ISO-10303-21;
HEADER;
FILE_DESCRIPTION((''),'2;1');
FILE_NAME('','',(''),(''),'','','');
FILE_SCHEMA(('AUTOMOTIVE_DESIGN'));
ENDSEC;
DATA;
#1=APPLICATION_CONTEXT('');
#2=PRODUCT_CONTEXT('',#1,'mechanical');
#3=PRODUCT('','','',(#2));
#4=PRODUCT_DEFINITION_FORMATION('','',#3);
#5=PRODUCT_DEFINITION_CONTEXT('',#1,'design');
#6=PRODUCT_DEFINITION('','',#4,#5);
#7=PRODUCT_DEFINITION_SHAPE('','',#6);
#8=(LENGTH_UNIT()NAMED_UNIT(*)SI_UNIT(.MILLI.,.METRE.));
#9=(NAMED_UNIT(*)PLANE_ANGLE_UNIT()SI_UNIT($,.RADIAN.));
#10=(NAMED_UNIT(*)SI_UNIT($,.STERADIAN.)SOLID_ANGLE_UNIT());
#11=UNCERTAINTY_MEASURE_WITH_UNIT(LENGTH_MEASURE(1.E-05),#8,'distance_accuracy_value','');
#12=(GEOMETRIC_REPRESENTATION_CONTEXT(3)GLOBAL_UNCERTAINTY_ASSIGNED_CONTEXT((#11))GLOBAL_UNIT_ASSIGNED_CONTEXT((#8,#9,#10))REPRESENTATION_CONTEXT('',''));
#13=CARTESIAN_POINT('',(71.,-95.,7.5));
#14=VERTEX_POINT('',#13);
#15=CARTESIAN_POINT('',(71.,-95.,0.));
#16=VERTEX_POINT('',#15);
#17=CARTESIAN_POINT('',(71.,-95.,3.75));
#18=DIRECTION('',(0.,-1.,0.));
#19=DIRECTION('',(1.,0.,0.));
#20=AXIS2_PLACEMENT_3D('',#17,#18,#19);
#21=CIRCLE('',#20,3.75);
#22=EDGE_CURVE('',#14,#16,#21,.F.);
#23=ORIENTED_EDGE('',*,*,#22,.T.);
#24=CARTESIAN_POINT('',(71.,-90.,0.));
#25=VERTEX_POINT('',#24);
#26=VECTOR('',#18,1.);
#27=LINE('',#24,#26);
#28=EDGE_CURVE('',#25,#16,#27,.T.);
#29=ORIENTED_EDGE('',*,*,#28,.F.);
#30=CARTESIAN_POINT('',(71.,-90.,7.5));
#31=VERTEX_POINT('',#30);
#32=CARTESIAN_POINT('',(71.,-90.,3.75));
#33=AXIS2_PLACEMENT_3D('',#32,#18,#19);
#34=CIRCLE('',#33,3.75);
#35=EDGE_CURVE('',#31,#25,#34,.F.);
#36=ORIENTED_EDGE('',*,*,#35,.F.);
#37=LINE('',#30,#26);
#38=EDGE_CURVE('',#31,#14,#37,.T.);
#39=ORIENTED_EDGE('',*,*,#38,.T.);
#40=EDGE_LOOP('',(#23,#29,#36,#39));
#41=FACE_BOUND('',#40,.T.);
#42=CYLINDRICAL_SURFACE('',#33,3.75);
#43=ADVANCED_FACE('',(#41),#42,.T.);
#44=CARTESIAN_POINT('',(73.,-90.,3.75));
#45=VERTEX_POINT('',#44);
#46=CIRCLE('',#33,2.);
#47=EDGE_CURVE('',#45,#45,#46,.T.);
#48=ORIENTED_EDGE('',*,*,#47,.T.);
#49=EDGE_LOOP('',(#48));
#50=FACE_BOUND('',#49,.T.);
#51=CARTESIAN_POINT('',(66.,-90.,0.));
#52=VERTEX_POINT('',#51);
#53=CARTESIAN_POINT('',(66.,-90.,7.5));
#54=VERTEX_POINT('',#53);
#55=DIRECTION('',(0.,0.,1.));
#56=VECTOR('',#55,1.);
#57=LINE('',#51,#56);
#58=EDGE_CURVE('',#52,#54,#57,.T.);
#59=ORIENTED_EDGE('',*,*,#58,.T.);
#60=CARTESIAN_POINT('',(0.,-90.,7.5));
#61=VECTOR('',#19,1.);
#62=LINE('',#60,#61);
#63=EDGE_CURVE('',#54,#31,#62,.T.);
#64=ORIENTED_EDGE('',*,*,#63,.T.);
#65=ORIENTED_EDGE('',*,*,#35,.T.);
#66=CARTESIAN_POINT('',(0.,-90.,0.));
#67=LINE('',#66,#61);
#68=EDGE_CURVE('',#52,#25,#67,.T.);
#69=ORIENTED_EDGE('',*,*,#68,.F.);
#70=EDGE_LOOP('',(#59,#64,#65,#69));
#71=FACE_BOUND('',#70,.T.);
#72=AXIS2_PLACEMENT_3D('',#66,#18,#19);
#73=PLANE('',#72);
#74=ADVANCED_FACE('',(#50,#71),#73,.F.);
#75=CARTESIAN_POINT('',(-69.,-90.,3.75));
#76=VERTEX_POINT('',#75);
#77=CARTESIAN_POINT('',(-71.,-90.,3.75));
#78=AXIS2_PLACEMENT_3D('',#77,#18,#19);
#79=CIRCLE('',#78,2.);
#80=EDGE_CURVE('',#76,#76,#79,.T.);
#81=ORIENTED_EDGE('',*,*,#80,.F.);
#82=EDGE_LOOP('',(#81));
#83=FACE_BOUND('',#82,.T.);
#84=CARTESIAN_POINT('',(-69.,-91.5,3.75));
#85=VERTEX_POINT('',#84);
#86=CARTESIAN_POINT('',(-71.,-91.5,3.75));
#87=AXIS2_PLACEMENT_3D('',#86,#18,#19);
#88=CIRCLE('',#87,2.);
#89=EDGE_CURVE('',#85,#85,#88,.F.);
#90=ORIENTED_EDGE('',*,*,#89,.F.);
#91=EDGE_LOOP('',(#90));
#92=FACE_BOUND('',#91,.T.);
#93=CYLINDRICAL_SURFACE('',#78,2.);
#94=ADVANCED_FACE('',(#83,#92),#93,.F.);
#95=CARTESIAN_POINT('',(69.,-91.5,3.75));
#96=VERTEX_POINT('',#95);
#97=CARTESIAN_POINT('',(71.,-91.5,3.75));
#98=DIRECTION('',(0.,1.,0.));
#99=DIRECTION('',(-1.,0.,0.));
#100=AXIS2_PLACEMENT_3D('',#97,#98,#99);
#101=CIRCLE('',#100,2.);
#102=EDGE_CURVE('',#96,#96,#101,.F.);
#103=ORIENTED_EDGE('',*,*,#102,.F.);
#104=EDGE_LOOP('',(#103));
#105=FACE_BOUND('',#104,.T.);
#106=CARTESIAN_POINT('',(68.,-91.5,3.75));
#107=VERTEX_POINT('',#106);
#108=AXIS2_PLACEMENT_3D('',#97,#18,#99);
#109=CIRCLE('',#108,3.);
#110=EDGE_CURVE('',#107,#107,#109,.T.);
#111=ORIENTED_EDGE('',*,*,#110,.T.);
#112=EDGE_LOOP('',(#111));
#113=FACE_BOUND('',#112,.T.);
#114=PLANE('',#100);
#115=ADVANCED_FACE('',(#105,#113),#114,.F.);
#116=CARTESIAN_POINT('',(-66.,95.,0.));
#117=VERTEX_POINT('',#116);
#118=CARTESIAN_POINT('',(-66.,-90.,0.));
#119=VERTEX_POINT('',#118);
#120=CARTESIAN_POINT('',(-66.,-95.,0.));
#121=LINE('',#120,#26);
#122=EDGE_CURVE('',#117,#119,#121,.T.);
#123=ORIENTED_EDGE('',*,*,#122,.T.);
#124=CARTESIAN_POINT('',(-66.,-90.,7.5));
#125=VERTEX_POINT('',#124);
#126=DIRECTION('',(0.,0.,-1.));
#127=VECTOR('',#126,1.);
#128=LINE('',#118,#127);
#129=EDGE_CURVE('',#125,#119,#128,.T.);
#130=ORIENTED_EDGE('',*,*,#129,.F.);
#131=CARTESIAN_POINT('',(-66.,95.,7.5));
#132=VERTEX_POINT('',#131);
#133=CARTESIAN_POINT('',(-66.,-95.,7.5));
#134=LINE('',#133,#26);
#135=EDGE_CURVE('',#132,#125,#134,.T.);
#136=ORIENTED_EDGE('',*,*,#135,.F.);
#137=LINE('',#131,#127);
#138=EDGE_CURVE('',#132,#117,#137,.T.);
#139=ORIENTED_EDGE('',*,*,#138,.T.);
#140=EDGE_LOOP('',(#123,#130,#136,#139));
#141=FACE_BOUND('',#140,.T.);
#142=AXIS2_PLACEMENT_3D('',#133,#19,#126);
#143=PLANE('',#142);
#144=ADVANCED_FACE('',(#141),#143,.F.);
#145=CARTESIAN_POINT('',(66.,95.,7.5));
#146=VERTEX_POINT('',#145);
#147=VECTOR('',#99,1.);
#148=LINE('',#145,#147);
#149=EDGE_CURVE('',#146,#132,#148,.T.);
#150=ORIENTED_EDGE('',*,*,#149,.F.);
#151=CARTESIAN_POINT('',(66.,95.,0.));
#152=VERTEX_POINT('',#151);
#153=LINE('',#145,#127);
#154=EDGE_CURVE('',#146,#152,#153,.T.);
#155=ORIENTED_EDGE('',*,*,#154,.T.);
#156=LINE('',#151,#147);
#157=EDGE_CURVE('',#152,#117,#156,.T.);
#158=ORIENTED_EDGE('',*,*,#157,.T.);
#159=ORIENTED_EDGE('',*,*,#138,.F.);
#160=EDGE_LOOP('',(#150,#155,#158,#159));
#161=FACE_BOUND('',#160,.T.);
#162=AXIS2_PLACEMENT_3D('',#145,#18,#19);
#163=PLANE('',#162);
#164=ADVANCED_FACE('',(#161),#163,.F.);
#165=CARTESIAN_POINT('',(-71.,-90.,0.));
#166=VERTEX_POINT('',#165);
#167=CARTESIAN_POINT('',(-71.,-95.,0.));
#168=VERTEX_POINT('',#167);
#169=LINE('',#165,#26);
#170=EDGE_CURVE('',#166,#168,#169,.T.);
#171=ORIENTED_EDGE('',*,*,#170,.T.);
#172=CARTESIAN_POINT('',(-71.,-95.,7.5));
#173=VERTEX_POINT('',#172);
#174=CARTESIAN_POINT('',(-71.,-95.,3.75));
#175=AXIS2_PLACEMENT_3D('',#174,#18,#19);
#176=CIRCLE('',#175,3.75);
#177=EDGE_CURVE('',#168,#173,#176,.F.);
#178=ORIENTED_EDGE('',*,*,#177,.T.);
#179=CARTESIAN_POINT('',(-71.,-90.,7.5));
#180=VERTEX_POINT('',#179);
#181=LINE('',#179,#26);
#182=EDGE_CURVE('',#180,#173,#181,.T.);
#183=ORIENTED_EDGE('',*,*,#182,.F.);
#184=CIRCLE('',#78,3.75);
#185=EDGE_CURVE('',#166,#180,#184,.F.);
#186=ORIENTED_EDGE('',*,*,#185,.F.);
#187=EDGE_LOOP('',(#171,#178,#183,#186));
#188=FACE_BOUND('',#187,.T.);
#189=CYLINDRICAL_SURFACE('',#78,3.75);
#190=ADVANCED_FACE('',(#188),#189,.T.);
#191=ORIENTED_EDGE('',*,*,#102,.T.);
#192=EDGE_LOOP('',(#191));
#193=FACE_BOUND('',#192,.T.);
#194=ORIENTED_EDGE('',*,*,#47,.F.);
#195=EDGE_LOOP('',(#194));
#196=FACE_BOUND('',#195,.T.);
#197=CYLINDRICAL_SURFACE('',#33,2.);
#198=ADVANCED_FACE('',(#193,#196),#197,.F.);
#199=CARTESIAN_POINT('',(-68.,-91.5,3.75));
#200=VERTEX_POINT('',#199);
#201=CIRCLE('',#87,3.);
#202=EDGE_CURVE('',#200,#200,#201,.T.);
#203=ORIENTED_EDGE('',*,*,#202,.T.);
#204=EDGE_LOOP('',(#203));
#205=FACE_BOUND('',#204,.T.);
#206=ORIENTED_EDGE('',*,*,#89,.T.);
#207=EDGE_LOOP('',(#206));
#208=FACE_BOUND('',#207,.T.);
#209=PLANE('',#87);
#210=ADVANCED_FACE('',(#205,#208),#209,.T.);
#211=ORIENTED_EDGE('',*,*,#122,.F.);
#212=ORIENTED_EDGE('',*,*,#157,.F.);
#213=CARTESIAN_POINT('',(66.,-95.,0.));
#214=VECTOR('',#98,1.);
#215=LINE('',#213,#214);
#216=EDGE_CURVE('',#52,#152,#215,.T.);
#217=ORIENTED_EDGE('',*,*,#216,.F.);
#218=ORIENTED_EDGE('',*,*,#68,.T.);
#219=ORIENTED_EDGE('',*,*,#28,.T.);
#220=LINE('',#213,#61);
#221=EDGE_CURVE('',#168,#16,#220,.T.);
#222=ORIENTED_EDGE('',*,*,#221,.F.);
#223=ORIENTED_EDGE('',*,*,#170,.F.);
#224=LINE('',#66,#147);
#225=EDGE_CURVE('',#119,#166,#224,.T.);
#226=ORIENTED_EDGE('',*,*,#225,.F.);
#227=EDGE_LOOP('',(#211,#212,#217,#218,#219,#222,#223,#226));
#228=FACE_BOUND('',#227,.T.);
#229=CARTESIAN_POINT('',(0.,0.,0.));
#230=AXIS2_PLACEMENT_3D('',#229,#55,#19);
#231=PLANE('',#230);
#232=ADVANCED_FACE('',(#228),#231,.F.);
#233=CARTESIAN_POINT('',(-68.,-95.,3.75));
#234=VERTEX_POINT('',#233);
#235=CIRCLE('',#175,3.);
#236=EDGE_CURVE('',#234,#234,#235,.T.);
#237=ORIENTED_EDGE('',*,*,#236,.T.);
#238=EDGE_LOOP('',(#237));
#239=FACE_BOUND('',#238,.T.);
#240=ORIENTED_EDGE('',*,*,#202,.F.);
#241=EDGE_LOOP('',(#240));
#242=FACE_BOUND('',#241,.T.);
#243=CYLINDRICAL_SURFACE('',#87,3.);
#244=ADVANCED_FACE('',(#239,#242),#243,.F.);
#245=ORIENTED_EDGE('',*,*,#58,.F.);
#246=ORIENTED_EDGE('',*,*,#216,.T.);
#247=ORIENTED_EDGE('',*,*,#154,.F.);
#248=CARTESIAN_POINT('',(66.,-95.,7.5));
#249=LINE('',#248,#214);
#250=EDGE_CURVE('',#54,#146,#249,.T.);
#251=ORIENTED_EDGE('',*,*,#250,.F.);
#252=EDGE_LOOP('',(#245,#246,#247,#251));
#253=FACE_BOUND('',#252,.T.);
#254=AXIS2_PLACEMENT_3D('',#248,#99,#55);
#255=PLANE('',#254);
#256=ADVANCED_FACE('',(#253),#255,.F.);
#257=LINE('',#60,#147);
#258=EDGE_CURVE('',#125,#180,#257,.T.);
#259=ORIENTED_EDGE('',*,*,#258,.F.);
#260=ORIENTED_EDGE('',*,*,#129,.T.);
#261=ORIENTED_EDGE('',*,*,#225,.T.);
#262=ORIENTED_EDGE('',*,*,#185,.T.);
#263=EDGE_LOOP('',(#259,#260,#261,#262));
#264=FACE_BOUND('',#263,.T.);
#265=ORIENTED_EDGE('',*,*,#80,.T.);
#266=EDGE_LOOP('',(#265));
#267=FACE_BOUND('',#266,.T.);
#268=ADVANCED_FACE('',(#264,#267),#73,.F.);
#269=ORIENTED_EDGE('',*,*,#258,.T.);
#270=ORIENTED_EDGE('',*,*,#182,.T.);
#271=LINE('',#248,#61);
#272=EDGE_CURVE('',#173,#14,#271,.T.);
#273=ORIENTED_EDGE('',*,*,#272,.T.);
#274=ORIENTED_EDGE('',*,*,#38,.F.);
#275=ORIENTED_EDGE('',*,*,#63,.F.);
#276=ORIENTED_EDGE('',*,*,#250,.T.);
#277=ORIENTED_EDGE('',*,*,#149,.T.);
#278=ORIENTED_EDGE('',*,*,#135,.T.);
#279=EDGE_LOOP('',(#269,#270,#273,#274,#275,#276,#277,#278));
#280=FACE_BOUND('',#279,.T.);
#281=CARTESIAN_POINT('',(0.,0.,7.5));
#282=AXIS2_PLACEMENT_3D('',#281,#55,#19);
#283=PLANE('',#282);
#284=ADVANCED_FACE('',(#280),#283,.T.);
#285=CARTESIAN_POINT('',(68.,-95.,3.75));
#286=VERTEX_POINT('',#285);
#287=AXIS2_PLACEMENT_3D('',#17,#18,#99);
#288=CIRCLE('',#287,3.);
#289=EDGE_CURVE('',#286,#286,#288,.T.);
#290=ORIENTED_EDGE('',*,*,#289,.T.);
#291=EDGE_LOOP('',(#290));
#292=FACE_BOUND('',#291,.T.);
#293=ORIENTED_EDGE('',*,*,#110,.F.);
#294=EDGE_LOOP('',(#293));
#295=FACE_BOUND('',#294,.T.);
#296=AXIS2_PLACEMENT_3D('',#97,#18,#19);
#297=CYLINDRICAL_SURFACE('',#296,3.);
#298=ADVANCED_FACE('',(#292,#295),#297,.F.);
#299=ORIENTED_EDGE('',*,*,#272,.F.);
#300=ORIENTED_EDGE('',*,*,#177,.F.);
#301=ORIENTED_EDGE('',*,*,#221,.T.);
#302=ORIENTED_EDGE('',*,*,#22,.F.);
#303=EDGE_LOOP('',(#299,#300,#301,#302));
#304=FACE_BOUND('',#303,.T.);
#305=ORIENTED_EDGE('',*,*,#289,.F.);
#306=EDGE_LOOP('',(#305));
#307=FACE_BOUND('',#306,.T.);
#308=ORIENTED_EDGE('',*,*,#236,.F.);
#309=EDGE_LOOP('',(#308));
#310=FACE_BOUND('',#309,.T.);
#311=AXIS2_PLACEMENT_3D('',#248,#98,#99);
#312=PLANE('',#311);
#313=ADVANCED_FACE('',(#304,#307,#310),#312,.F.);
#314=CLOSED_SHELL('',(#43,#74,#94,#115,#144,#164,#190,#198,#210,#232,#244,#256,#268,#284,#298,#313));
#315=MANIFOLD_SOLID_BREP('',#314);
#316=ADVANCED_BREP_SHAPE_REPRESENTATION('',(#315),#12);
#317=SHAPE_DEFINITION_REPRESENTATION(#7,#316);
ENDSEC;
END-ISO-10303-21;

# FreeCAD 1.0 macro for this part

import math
import FreeCAD as App
import Part
import Sketcher

V = App.Vector

doc = App.newDocument("Part")
body = doc.addObject("PartDesign::Body", "Body")

# Sketch on XY plane
sketch1 = body.newObject("Sketcher::SketchObject", "Sketch")
sketch1.AttachmentSupport = (doc.getObject("XY_Plane"), [""])
sketch1.MapMode = "FlatFace"
sketch1.addGeometry([
    Part.LineSegment(V(-66, 95, 0), V(-66, -95, 0)),
    Part.LineSegment(V(-66, -95, 0), V(66, -95, 0)),
    Part.LineSegment(V(66, -95, 0), V(66, 95, 0)),
    Part.LineSegment(V(66, 95, 0), V(-66, 95, 0)),
], False)
sketch1.addConstraint([
    Sketcher.Constraint("Coincident", 0, 2, 1, 1),
    Sketcher.Constraint("Coincident", 1, 2, 2, 1),
    Sketcher.Constraint("Coincident", 2, 2, 3, 1),
    Sketcher.Constraint("Coincident", 3, 2, 0, 1),
    Sketcher.Constraint("Vertical", 0),
    Sketcher.Constraint("Horizontal", 1),
    Sketcher.Constraint("Vertical", 2),
    Sketcher.Constraint("Horizontal", 3),
    Sketcher.Constraint("Symmetric", 0, 2, 2, 2, -1, 1),
    Sketcher.Constraint("DistanceX", 1, 1, 1, 2, 132.0),
    Sketcher.Constraint("DistanceY", 0, 2, 0, 1, 190.0),
])
pad1 = body.newObject("PartDesign::Pad", "Pad")
pad1.Profile = sketch1
pad1.Length = 7.5

# Sketch on XZ plane
sketch2 = body.newObject("Sketcher::SketchObject", "Sketch001")
sketch2.AttachmentSupport = (doc.getObject("XZ_Plane"), [""])
sketch2.MapMode = "FlatFace"
sketch2.AttachmentOffset = App.Placement(V(0, 0, 95), App.Rotation())
sketch2.addGeometry([
    Part.ArcOfCircle(Part.Circle(V(-71, 3.8, 0), V(0, 0, 1), 3.8), math.radians(90), math.radians(270)),  # 0
    Part.LineSegment(V(-71, 0, 0), V(-66, 0, 0)),  # 1
    Part.LineSegment(V(-66, 0, 0), V(-66, 7.5, 0)),  # 2
    Part.LineSegment(V(-66, 7.5, 0), V(-71, 7.5, 0)),  # 3
    Part.ArcOfCircle(Part.Circle(V(71, 3.8, 0), V(0, 0, 1), 3.8), math.radians(-90), math.radians(90)),  # 4
    Part.LineSegment(V(71, 7.5, 0), V(66, 7.5, 0)),  # 5
    Part.LineSegment(V(66, 7.5, 0), V(66, 0, 0)),  # 6
    Part.LineSegment(V(66, 0, 0), V(71, 0, 0)),  # 7
], False)
sketch2.addConstraint([
    Sketcher.Constraint("Tangent", 0, 2, 1, 1),
    Sketcher.Constraint("Coincident", 1, 2, 2, 1),
    Sketcher.Constraint("Coincident", 2, 2, 3, 1),
    Sketcher.Constraint("Tangent", 3, 2, 0, 1),
    Sketcher.Constraint("Tangent", 4, 2, 5, 1),
    Sketcher.Constraint("Coincident", 5, 2, 6, 1),
    Sketcher.Constraint("Coincident", 6, 2, 7, 1),
    Sketcher.Constraint("Tangent", 7, 2, 4, 1),
    Sketcher.Constraint("Horizontal", 1),
    Sketcher.Constraint("Vertical", 2),
    Sketcher.Constraint("Horizontal", 3),
    Sketcher.Constraint("Horizontal", 5),
    Sketcher.Constraint("Vertical", 6),
    Sketcher.Constraint("Horizontal", 7),
    Sketcher.Constraint("Equal", 0, 4),
    Sketcher.Constraint("Symmetric", 1, 2, 6, 2, -1, 1),
    Sketcher.Constraint("Symmetric", 0, 3, 4, 3, -2),
    Sketcher.Constraint("DistanceX", 1, 1, 1, 2, 5.0),
    Sketcher.Constraint("Radius", 0, 3.75),
    Sketcher.Constraint("DistanceX", 0, 3, -1, 1, 71.0),
])
pad2 = body.newObject("PartDesign::Pad", "Pad001")
pad2.Profile = sketch2
pad2.Length = 5
pad2.Reversed = True

# Sketch on XZ plane
sketch3 = body.newObject("Sketcher::SketchObject", "Sketch002")
sketch3.AttachmentSupport = (doc.getObject("XZ_Plane"), [""])
sketch3.MapMode = "FlatFace"
sketch3.AttachmentOffset = App.Placement(V(0, 0, 95), App.Rotation())
sketch3.addGeometry([
    Part.Circle(V(-71, 3.8, 0), V(0, 0, 1), 2),
    Part.Circle(V(71, 3.8, 0), V(0, 0, 1), 2),
], False)
sketch3.addConstraint([
    Sketcher.Constraint("Equal", 0, 1),
    Sketcher.Constraint("Symmetric", 0, 3, 1, 3, -2),
    Sketcher.Constraint("Diameter", 0, 4.0),
    Sketcher.Constraint("DistanceX", 0, 3, -1, 1, 71.0),
    Sketcher.Constraint("DistanceY", -1, 1, 0, 3, 3.75),
])
pocket1 = body.newObject("PartDesign::Pocket", "Pocket")
pocket1.Profile = sketch3
pocket1.Length = 5

# Sketch on XZ plane
sketch4 = body.newObject("Sketcher::SketchObject", "Sketch003")
sketch4.AttachmentSupport = (doc.getObject("XZ_Plane"), [""])
sketch4.MapMode = "FlatFace"
sketch4.AttachmentOffset = App.Placement(V(0, 0, 95), App.Rotation())
sketch4.addGeometry([
    Part.Circle(V(-71, 3.8, 0), V(0, 0, 1), 3),
    Part.Circle(V(71, 3.8, 0), V(0, 0, 1), 3),
], False)
sketch4.addConstraint([
    Sketcher.Constraint("Equal", 0, 1),
    Sketcher.Constraint("Symmetric", 0, 3, 1, 3, -2),
    Sketcher.Constraint("Diameter", 0, 6.0),
    Sketcher.Constraint("DistanceX", 0, 3, -1, 1, 71.0),
    Sketcher.Constraint("DistanceY", -1, 1, 0, 3, 3.75),
])
pocket2 = body.newObject("PartDesign::Pocket", "Pocket001")
pocket2.Profile = sketch4
pocket2.Length = 3.5

doc.recompute()
